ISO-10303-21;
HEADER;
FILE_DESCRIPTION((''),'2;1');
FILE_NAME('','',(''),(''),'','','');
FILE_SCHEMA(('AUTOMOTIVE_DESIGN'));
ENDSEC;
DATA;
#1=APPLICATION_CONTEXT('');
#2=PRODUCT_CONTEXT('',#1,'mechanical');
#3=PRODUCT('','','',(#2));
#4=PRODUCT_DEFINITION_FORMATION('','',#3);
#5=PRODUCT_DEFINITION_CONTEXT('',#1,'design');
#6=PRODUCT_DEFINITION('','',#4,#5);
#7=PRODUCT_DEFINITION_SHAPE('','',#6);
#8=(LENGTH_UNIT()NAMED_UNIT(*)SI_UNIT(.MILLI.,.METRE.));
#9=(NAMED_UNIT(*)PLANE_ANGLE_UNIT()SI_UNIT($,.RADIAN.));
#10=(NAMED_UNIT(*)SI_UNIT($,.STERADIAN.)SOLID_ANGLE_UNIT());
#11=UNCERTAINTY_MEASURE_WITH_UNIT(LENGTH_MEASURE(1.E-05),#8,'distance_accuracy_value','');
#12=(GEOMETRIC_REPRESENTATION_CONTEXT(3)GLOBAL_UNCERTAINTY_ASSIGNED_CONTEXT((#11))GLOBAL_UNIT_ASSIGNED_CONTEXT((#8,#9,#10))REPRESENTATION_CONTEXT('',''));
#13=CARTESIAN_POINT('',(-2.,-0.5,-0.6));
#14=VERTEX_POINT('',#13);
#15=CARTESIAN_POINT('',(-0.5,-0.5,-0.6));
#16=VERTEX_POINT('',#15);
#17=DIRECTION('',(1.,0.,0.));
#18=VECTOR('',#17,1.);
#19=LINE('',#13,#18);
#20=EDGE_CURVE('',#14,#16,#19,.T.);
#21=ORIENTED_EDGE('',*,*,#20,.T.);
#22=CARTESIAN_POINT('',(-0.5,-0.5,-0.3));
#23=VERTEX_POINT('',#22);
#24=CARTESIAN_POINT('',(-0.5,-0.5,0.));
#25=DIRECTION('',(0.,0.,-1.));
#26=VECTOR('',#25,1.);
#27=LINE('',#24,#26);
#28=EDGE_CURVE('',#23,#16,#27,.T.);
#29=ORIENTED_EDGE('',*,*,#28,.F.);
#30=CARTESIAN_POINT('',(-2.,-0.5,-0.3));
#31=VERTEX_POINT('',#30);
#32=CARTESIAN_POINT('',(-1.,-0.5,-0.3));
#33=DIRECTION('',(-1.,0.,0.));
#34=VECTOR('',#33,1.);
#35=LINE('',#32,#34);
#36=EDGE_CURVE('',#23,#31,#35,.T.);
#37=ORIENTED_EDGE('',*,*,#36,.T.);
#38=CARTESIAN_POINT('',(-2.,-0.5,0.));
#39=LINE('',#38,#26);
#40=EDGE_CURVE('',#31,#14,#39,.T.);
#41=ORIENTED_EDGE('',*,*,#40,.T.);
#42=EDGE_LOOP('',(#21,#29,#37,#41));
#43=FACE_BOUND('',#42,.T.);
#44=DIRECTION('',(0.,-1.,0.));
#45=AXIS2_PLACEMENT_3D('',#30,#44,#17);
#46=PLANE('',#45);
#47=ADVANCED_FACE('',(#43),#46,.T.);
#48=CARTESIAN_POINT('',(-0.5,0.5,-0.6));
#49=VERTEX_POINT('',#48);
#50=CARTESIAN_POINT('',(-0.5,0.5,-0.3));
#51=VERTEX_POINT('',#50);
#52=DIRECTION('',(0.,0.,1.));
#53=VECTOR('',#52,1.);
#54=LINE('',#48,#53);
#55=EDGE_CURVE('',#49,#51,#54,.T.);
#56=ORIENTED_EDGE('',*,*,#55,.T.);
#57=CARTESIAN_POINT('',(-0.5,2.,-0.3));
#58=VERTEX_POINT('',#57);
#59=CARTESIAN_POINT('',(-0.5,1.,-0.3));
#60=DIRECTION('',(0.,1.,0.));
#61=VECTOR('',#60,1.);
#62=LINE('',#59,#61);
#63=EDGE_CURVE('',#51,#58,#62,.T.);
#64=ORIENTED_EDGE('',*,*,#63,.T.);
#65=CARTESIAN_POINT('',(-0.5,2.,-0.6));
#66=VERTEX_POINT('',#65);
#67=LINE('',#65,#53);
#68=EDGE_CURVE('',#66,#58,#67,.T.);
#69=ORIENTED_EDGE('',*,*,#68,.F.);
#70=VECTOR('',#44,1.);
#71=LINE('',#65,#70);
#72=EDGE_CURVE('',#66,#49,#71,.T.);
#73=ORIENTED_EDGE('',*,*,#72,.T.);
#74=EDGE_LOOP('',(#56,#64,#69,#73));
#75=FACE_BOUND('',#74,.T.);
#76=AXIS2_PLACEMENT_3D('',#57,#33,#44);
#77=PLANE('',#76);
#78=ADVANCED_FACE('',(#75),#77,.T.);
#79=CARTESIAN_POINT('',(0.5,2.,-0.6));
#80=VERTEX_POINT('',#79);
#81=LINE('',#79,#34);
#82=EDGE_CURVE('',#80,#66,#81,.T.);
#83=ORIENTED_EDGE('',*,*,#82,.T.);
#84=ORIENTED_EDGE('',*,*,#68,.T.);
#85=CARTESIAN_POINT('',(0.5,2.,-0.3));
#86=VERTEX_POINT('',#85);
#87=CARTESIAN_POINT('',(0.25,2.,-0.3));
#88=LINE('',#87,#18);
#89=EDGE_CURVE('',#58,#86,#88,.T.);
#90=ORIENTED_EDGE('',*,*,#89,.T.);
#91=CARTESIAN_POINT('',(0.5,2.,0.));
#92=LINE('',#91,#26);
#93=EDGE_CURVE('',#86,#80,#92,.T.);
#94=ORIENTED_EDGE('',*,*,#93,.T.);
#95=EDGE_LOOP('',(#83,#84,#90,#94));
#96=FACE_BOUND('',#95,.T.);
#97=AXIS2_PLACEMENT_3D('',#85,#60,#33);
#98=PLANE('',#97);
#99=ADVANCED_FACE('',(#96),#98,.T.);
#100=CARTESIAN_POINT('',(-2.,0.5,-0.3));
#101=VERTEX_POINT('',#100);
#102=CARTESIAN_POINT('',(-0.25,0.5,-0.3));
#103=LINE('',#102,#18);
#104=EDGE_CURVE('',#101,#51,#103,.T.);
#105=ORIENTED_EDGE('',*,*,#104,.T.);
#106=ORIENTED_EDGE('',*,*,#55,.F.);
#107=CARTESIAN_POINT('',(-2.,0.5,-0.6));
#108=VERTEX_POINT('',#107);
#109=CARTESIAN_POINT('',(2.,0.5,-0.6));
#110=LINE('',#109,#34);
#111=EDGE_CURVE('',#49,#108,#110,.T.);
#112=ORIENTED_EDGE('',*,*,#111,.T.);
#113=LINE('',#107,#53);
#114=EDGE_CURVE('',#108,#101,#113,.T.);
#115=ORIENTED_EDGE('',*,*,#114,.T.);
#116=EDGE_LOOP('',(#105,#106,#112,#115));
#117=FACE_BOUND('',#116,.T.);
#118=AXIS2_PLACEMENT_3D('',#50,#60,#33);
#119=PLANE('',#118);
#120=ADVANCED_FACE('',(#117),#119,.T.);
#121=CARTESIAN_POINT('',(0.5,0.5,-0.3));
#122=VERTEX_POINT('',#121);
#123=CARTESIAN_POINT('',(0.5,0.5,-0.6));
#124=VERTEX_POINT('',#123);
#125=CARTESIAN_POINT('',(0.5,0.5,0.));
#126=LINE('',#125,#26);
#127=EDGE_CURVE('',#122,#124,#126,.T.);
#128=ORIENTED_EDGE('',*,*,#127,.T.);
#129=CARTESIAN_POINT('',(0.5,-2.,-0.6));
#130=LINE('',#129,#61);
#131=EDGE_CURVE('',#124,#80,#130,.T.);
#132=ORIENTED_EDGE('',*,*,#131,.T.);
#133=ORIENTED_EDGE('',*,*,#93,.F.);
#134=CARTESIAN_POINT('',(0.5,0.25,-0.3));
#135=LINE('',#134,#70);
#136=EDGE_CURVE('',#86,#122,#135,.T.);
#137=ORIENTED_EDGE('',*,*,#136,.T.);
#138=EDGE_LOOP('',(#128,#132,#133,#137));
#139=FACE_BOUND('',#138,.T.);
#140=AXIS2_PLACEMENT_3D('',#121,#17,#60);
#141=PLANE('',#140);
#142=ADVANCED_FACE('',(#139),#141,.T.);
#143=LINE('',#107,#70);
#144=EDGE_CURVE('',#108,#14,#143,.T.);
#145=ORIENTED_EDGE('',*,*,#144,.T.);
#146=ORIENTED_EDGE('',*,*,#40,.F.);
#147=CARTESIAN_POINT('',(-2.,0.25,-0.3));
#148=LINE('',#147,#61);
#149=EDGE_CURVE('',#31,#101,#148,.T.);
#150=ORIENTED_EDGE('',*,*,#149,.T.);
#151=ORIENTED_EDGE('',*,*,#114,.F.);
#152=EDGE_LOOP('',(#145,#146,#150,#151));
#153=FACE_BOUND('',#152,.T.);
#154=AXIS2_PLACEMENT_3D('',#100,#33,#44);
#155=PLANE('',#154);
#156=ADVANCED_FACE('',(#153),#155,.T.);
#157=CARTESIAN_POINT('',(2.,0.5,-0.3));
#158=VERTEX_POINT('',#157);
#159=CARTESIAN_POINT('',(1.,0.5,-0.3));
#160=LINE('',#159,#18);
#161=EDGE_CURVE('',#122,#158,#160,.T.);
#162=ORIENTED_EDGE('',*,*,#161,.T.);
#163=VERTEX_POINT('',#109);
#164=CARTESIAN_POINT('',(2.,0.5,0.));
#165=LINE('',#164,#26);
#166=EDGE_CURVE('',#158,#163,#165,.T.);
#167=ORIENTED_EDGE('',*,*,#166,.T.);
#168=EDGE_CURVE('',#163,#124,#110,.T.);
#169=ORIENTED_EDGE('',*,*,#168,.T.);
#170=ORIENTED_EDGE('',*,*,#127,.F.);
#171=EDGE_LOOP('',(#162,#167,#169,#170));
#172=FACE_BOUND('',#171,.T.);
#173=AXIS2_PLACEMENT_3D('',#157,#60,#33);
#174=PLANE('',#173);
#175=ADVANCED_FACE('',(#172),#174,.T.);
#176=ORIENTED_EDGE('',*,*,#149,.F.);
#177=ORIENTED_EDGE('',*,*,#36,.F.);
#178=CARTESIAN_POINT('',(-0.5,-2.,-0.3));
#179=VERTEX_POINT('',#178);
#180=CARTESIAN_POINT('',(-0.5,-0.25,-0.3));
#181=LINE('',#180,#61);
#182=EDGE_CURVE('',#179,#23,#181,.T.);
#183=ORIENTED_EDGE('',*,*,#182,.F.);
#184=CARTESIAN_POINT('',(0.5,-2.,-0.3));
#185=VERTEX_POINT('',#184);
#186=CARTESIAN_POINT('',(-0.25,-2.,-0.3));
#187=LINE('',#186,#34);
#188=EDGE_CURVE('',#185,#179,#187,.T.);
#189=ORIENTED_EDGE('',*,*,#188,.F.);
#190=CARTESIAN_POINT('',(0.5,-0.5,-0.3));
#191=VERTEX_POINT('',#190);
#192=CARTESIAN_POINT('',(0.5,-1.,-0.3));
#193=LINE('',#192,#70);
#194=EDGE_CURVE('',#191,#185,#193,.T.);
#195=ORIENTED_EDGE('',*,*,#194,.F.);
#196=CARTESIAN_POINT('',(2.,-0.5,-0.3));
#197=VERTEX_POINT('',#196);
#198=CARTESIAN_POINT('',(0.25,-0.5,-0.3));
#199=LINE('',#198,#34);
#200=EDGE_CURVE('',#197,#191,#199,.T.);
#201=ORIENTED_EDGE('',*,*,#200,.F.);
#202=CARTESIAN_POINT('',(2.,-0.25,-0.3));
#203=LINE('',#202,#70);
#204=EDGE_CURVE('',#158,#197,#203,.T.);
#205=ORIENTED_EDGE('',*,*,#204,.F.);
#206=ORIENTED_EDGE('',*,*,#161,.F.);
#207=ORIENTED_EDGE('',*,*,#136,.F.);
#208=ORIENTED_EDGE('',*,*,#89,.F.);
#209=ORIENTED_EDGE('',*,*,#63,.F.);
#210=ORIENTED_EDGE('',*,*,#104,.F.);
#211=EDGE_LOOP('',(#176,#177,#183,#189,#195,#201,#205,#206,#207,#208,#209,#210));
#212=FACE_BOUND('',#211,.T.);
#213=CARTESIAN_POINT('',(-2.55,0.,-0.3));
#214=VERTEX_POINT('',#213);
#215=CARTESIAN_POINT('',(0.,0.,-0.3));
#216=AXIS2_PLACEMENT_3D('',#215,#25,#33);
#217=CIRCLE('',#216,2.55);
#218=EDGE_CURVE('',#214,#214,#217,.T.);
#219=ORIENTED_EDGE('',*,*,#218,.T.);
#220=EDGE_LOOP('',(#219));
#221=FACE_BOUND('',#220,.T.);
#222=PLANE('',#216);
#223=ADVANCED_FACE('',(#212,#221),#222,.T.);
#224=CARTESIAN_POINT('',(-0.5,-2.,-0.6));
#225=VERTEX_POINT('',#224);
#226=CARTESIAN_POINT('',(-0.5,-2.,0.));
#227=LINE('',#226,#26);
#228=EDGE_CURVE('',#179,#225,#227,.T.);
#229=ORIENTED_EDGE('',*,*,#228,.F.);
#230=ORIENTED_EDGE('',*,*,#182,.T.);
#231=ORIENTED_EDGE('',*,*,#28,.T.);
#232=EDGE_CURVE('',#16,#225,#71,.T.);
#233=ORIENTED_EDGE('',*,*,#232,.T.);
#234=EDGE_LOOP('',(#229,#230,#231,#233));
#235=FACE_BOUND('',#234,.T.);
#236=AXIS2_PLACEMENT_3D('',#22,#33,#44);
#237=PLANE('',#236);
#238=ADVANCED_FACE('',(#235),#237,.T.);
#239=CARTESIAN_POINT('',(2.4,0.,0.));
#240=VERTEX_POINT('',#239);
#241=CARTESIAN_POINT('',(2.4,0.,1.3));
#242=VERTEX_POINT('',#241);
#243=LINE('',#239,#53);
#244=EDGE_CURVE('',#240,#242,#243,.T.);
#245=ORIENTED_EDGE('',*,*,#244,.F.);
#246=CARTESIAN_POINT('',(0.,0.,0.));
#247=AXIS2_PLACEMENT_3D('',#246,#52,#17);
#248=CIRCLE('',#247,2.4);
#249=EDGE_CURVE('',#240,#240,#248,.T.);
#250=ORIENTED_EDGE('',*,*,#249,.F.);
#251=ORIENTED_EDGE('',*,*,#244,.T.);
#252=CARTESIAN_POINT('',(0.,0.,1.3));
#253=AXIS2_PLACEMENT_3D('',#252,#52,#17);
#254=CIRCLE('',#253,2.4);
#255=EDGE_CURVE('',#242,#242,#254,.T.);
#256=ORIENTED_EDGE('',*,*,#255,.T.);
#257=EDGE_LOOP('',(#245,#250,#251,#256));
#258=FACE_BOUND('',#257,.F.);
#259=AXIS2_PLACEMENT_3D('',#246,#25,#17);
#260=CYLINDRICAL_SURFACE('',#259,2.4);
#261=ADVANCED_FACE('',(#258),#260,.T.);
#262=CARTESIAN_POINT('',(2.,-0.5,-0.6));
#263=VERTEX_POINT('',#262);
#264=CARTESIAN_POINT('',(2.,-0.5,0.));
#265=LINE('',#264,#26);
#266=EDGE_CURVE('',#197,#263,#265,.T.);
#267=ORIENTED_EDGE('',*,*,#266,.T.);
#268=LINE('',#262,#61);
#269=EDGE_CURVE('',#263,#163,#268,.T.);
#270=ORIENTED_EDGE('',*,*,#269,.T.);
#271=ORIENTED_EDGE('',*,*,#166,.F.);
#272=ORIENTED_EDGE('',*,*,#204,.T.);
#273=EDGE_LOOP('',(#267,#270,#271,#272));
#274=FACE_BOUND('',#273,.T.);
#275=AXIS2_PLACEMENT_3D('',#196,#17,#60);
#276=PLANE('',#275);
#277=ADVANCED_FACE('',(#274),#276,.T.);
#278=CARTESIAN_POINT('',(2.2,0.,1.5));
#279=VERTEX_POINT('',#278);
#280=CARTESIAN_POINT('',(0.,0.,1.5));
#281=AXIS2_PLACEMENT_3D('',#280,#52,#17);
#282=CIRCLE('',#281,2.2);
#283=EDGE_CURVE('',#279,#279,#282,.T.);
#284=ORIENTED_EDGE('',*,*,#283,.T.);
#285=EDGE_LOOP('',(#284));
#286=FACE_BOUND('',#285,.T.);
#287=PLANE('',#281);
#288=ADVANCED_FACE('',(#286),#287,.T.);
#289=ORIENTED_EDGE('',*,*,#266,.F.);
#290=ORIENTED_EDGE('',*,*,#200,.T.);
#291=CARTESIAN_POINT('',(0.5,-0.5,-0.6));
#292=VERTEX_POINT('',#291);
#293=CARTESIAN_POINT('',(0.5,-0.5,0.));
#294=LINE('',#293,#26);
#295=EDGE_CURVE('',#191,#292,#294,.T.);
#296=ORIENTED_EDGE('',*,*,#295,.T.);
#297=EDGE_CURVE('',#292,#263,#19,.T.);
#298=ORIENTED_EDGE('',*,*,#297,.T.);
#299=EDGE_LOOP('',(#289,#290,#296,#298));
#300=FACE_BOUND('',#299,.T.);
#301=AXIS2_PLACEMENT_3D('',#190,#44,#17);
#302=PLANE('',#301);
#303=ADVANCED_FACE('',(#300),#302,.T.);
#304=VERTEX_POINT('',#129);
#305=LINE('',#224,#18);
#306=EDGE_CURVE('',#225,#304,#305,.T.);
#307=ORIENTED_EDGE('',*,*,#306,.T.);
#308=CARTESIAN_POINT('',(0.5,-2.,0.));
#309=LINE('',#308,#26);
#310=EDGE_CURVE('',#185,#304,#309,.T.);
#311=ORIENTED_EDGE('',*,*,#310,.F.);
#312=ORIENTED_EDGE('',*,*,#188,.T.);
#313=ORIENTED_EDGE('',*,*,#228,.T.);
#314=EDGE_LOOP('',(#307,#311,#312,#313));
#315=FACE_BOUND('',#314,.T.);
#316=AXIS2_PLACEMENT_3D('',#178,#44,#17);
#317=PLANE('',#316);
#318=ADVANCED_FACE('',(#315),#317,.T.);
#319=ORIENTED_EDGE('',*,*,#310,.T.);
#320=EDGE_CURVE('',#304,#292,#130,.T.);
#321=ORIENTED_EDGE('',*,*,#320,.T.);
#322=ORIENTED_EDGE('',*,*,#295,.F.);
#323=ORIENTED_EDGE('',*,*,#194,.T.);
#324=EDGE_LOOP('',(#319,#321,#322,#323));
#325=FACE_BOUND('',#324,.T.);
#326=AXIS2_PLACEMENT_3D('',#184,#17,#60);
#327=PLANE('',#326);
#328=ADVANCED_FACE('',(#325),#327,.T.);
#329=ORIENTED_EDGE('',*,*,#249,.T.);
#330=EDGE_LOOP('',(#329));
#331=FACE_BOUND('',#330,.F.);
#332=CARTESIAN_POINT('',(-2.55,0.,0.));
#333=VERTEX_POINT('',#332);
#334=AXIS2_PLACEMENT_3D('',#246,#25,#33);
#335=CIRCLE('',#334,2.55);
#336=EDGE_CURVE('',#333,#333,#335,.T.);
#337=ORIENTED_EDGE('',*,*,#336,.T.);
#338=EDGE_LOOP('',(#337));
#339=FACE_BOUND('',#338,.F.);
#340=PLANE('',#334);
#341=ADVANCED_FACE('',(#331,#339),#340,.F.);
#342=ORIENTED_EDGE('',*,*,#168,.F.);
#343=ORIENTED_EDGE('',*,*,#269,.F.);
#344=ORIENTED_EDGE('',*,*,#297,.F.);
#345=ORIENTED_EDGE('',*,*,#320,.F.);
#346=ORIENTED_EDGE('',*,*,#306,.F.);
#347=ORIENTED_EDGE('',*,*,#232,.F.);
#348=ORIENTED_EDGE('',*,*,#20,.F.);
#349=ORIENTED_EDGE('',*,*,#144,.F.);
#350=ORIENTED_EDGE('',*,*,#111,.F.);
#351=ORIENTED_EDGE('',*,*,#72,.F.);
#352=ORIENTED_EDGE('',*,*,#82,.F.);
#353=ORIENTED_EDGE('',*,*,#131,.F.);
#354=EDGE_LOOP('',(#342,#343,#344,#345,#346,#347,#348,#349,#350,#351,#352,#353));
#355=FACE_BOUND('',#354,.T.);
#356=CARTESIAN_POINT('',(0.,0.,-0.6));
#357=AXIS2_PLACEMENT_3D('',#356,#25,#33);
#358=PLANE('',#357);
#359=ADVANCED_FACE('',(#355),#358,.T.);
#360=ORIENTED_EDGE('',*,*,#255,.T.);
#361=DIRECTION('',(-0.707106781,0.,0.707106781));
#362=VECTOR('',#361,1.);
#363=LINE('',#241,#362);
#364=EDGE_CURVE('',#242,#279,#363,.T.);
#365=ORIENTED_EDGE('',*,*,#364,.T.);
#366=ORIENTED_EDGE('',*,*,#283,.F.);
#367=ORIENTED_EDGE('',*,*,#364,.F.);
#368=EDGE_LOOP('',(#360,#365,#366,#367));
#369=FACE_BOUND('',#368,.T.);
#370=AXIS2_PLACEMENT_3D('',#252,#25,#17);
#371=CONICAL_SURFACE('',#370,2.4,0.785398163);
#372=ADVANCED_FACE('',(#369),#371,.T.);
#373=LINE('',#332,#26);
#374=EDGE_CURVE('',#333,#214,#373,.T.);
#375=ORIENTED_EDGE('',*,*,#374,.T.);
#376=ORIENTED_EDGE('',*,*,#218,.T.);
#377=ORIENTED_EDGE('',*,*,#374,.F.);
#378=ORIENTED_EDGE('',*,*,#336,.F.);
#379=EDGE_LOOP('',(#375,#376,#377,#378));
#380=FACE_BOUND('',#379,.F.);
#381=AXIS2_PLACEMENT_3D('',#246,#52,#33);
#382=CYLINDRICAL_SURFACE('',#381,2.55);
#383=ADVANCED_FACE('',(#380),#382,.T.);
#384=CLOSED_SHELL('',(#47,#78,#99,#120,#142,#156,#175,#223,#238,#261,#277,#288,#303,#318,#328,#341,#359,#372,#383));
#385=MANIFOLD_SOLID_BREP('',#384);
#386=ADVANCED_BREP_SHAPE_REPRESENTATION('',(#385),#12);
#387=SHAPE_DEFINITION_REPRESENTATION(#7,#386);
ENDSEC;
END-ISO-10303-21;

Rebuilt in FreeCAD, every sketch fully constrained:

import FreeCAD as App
import Part
import Sketcher
from FreeCAD import Vector


def edges_at(feature, points):
    """Names of the edges that pass closest to the given points."""
    edges = feature.Shape.Edges
    near = lambda p: min(range(len(edges)), key=lambda i: edges[i].distToShape(Part.Vertex(*p))[0])
    return sorted({f"Edge{near(p) + 1}" for p in points})


def add_polygon(sketch, points):
    """Adds a closed chain of lines whose ends are joined by coincident constraints."""
    first, n = sketch.GeometryCount, len(points)
    for a, b in zip(points, points[1:] + points[:1]):
        sketch.addGeometry(Part.LineSegment(App.Vector(*a, 0), App.Vector(*b, 0)), False)
    for i in range(n):
        sketch.addConstraint(Sketcher.Constraint("Coincident", first + i, 2, first + (i + 1) % n, 1))

doc = App.newDocument("Part")
body = doc.addObject("PartDesign::Body", "Body")

sketch1 = body.newObject("Sketcher::SketchObject", "Sketch")
sketch1.AttachmentSupport = (doc.getObject("XY_Plane"), [""])
sketch1.MapMode = "FlatFace"
sketch1.addGeometry(Part.Circle(Vector(0, 0, 0), Vector(0, 0, 1), 2.4), False)
sketch1.addConstraint(Sketcher.Constraint("Coincident", 0, 3, -1, 1))
sketch1.addConstraint(Sketcher.Constraint("Diameter", 0, 4.8))
pad1 = body.newObject("PartDesign::Pad", "Pad")
pad1.Profile = sketch1
pad1.Length = 1.5

sketch2 = body.newObject("Sketcher::SketchObject", "Sketch001")
sketch2.AttachmentSupport = (doc.getObject("XY_Plane"), [""])
sketch2.MapMode = "FlatFace"
sketch2.addGeometry(Part.Circle(Vector(0, 0, 0), Vector(0, 0, 1), 2.55), False)
sketch2.addConstraint(Sketcher.Constraint("Coincident", 0, 3, -1, 1))
sketch2.addConstraint(Sketcher.Constraint("Diameter", 0, 5.1))
pad2 = body.newObject("PartDesign::Pad", "Pad001")
pad2.Profile = sketch2
pad2.Length = 0.3
pad2.Reversed = True

sketch3 = body.newObject("Sketcher::SketchObject", "Sketch002")
sketch3.AttachmentSupport = (doc.getObject("XY_Plane"), [""])
sketch3.MapMode = "FlatFace"
sketch3.AttachmentOffset = App.Placement(Vector(0, 0, -0.3), App.Rotation())
add_polygon(sketch3, [(-0.5, 2), (0.5, 2), (0.5, 0.5), (2, 0.5), (2, -0.5), (0.5, -0.5), (0.5, -2), (-0.5, -2), (-0.5, -0.5), (-2, -0.5), (-2, 0.5), (-0.5, 0.5)])
sketch3.addConstraint(Sketcher.Constraint("Horizontal", 0))
sketch3.addConstraint(Sketcher.Constraint("Vertical", 1))
sketch3.addConstraint(Sketcher.Constraint("Horizontal", 2))
sketch3.addConstraint(Sketcher.Constraint("Vertical", 3))
sketch3.addConstraint(Sketcher.Constraint("Horizontal", 4))
sketch3.addConstraint(Sketcher.Constraint("Vertical", 5))
sketch3.addConstraint(Sketcher.Constraint("Horizontal", 6))
sketch3.addConstraint(Sketcher.Constraint("Vertical", 7))
sketch3.addConstraint(Sketcher.Constraint("Horizontal", 8))
sketch3.addConstraint(Sketcher.Constraint("Vertical", 9))
sketch3.addConstraint(Sketcher.Constraint("Horizontal", 10))
sketch3.addConstraint(Sketcher.Constraint("Vertical", 11))
sketch3.addConstraint(Sketcher.Constraint("Symmetric", 0, 2, 6, 2, -1, 1))
sketch3.addConstraint(Sketcher.Constraint("Symmetric", 2, 2, 8, 2, -1, 1))
sketch3.addConstraint(Sketcher.Constraint("Symmetric", 4, 2, 10, 2, -1, 1))
sketch3.addConstraint(Sketcher.Constraint("Symmetric", 4, 2, 7, 2, -2))
sketch3.addConstraint(Sketcher.Constraint("Equal", 10, 1))
sketch3.addConstraint(Sketcher.Constraint("Equal", 6, 3))
sketch3.addConstraint(Sketcher.Constraint("DistanceX", 0, 1, 0, 2, 1.0))
sketch3.addConstraint(Sketcher.Constraint("DistanceY", 5, 2, 0, 2, 4.0))
pad3 = body.newObject("PartDesign::Pad", "Pad002")
pad3.Profile = sketch3
pad3.Type = "TwoLengths"
pad3.Length = 0.3
pad3.Length2 = 0.3
pad3.Reversed = True
doc.recompute()

chamfer = body.newObject("PartDesign::Chamfer", "Chamfer")
chamfer.Base = (pad3, edges_at(pad3, [(-2.4, 0, 1.5)]))
chamfer.Size = 0.2

doc.recompute()
